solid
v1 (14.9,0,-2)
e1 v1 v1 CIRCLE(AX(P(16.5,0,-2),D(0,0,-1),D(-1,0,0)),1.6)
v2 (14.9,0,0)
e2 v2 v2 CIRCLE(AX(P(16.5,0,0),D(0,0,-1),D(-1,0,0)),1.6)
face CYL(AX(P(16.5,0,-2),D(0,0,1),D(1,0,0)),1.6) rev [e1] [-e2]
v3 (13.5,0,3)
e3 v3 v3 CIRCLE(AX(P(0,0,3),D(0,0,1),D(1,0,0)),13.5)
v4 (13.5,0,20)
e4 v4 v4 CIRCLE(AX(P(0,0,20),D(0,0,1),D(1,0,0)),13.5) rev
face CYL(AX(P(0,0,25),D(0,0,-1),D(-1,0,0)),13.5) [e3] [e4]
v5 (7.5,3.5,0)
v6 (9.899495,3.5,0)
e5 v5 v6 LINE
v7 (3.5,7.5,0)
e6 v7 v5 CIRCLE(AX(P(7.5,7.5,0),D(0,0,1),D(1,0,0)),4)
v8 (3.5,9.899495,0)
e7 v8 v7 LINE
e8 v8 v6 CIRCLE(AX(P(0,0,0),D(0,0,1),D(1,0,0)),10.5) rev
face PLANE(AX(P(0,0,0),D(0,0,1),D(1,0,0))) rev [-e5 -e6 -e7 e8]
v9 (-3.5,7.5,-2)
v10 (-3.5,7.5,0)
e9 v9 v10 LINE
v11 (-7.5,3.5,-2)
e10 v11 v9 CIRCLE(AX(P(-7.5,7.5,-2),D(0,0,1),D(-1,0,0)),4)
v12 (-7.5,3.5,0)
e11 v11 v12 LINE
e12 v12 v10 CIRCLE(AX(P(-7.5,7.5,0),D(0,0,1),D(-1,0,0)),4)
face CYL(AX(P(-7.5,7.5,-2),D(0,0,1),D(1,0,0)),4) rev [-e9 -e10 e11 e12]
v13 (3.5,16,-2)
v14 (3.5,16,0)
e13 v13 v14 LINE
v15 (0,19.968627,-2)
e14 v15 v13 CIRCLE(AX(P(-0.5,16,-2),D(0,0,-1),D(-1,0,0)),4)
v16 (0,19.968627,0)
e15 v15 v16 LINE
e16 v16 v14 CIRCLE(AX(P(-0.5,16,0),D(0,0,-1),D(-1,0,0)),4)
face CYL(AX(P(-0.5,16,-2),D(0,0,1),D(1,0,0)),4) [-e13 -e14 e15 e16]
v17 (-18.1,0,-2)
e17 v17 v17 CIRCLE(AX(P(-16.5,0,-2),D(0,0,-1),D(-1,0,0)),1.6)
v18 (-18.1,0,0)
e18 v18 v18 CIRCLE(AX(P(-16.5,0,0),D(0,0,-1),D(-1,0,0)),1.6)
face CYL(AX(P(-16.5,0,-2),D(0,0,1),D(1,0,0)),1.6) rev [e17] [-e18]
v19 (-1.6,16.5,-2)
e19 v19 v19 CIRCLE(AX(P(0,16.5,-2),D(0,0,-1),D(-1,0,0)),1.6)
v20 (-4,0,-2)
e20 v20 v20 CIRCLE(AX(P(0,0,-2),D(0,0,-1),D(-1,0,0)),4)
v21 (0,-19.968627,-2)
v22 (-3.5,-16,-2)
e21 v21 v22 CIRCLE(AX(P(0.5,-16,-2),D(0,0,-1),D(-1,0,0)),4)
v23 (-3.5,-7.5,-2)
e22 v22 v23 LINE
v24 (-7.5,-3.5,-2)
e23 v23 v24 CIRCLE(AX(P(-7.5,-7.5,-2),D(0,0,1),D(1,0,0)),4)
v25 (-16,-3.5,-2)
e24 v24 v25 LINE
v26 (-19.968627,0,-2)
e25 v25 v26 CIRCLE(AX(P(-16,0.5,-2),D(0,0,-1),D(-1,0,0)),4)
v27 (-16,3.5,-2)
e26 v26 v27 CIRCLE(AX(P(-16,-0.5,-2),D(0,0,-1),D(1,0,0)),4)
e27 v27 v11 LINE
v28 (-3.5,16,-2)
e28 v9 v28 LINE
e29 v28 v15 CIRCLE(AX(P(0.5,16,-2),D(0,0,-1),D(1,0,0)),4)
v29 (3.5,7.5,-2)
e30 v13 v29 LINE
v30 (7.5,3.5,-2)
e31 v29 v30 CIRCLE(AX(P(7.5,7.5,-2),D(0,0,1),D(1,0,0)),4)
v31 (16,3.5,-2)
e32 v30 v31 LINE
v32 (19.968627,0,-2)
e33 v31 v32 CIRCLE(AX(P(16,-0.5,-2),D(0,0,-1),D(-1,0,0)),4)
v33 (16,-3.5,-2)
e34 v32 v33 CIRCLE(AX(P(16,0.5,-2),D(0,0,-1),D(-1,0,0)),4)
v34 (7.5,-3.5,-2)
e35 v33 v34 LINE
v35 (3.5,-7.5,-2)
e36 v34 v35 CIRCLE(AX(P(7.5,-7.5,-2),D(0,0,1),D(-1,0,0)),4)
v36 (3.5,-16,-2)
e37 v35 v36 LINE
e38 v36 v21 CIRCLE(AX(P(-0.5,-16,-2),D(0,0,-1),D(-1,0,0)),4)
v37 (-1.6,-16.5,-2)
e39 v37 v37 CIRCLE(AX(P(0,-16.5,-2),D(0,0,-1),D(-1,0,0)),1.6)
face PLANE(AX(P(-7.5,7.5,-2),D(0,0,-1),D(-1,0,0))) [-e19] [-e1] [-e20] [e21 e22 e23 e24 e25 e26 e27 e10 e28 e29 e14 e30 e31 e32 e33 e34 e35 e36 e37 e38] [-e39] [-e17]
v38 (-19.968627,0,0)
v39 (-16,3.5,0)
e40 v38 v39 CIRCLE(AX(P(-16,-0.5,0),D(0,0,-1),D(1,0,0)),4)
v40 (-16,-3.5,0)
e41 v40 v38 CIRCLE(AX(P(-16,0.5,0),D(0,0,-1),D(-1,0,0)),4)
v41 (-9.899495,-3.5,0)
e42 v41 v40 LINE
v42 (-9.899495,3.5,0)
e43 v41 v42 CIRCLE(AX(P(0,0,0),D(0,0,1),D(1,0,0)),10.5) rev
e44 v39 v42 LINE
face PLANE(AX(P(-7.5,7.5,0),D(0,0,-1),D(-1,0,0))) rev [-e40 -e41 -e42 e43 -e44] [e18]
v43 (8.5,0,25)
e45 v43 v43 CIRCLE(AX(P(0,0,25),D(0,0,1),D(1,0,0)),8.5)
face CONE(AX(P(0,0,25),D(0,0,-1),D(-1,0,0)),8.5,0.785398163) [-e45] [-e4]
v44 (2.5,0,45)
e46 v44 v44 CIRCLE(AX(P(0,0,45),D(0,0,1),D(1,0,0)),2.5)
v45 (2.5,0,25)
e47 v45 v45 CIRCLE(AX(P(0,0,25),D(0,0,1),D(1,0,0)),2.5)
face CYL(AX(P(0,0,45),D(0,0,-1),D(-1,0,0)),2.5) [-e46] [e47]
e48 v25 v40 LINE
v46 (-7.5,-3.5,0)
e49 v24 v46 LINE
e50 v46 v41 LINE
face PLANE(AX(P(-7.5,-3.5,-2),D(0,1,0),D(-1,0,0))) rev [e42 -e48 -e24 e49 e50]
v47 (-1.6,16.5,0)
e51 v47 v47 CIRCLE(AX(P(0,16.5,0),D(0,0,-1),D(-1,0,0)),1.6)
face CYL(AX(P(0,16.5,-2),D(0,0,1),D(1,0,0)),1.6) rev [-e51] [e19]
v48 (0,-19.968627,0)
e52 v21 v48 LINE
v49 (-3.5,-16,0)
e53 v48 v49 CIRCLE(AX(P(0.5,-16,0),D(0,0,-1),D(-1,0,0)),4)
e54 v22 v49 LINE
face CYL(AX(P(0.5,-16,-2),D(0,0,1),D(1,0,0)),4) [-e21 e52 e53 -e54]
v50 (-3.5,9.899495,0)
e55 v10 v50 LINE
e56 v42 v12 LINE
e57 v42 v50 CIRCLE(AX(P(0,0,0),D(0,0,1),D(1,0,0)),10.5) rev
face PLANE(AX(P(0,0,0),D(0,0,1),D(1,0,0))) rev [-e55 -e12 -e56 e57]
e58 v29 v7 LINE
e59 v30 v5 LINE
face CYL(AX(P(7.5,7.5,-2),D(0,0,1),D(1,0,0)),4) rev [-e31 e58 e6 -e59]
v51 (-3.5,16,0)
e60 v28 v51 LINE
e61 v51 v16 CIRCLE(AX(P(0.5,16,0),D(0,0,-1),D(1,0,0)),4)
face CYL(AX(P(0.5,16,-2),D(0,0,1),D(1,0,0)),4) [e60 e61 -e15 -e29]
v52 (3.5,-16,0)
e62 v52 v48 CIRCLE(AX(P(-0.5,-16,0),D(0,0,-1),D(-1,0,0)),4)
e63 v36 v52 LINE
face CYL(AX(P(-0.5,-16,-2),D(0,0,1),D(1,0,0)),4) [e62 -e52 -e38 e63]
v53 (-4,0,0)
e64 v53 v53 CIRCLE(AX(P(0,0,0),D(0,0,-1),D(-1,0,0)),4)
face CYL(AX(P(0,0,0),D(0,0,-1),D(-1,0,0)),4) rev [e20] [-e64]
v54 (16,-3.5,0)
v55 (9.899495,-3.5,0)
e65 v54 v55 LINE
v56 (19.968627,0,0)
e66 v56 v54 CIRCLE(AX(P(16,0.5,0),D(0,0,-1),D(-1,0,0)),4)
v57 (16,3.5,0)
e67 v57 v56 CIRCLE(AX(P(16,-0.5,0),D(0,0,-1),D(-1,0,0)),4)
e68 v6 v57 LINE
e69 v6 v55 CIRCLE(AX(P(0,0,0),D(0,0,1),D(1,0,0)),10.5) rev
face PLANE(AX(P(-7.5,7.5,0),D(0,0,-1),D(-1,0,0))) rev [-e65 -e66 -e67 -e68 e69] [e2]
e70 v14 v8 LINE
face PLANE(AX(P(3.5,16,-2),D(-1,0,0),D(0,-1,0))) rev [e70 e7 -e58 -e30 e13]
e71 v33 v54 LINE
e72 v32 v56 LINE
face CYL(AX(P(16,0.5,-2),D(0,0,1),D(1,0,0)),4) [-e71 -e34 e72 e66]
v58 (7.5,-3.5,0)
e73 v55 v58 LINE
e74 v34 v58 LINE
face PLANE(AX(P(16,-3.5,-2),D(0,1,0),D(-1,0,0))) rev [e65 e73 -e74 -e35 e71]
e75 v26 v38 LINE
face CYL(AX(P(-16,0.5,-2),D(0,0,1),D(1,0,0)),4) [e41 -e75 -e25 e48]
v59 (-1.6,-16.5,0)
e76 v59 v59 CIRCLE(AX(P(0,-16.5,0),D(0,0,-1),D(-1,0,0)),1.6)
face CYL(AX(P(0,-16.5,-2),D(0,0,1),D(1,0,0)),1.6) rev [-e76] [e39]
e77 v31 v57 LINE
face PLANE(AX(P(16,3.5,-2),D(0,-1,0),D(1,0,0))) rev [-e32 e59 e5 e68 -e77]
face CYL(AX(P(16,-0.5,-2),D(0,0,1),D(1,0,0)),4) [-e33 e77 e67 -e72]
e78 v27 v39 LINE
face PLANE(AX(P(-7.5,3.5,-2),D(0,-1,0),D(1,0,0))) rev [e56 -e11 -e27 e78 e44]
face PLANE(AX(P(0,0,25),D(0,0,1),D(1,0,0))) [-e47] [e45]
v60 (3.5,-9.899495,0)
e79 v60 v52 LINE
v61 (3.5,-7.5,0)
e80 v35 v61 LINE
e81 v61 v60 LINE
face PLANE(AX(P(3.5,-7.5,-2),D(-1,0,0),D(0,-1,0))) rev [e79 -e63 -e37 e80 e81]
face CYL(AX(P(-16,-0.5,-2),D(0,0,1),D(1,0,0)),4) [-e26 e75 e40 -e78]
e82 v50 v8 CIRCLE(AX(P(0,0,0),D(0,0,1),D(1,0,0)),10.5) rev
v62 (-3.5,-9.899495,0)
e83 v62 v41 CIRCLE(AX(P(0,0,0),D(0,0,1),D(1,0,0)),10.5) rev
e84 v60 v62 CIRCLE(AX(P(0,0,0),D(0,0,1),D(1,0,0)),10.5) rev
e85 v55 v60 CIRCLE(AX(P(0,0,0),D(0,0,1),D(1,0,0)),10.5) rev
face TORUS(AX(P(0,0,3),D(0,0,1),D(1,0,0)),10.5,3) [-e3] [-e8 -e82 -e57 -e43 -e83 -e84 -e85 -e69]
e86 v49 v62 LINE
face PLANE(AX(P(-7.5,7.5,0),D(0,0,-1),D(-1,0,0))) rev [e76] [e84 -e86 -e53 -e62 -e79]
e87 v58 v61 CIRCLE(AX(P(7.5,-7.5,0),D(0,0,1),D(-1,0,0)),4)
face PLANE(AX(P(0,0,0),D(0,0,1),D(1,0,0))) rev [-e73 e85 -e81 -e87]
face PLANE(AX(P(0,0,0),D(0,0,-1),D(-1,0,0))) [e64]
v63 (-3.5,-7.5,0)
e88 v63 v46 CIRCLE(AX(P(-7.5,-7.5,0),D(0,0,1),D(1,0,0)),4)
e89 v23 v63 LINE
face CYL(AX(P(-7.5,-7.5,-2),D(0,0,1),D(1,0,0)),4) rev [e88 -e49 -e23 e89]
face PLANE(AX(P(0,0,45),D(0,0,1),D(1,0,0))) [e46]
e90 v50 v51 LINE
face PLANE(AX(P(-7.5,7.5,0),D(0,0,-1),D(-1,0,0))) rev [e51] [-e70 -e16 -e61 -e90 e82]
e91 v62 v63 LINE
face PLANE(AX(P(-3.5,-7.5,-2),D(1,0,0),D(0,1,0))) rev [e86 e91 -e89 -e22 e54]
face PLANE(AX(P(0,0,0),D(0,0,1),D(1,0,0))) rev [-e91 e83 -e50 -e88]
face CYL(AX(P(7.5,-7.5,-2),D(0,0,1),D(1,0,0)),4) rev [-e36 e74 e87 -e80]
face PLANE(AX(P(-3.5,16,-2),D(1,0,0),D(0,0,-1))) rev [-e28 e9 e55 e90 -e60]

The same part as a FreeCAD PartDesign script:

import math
import FreeCAD as App
import Part
import Sketcher


def edges_at(feature, points):
    """Names of the edges that pass closest to the given points."""
    edges = feature.Shape.Edges
    near = lambda p: min(range(len(edges)), key=lambda i: edges[i].distToShape(Part.Vertex(*p))[0])
    return sorted({f"Edge{near(p) + 1}" for p in points})

doc = App.newDocument("Part")
body = doc.addObject("PartDesign::Body", "Body")

# Sketch on XY plane
sketch1 = body.newObject("Sketcher::SketchObject", "Sketch")
sketch1.AttachmentSupport = (doc.getObject("XY_Plane"), [""])
sketch1.MapMode = "FlatFace"
sketch1.addGeometry(Part.Circle(App.Vector(0, 0, 0), App.Vector(0, 0, 1), 13.5), False)
sketch1.addConstraint([
    Sketcher.Constraint("Coincident", 0, 3, -1, 1),
    Sketcher.Constraint("Diameter", 0, 27.0),
])
pad1 = body.newObject("PartDesign::Pad", "Pad")
pad1.Profile = sketch1
pad1.Length = 25

# Sketch on XY plane
sketch2 = body.newObject("Sketcher::SketchObject", "Sketch001")
sketch2.AttachmentSupport = (doc.getObject("XY_Plane"), [""])
sketch2.MapMode = "FlatFace"
sketch2.AttachmentOffset = App.Placement(App.Vector(0, 0, 25), App.Rotation())
sketch2.addGeometry(Part.Circle(App.Vector(0, 0, 0), App.Vector(0, 0, 1), 2.5), False)
sketch2.addConstraint([
    Sketcher.Constraint("Coincident", 0, 3, -1, 1),
    Sketcher.Constraint("Diameter", 0, 5.0),
])
pad2 = body.newObject("PartDesign::Pad", "Pad001")
pad2.Profile = sketch2
pad2.Length = 20
doc.recompute()

fillet = body.newObject("PartDesign::Fillet", "Fillet")
fillet.Base = (pad2, edges_at(pad2, [(-13.5, 0, 0)]))
fillet.Radius = 3
doc.recompute()

chamfer = body.newObject("PartDesign::Chamfer", "Chamfer")
chamfer.Base = (fillet, edges_at(fillet, [(-13.5, 0, 25)]))
chamfer.Size = 5

# Sketch on XY plane
sketch3 = body.newObject("Sketcher::SketchObject", "Sketch002")
sketch3.AttachmentSupport = (doc.getObject("XY_Plane"), [""])
sketch3.MapMode = "FlatFace"
sketch3.addGeometry([
    Part.LineSegment(App.Vector(3.5, -7.5, 0), App.Vector(3.5, -16, 0)),  # 0
    Part.ArcOfCircle(Part.Circle(App.Vector(-0.5, -16, 0), App.Vector(0, 0, 1), 4), math.radians(-82.819244), math.radians(0)),  # 1
    Part.ArcOfCircle(Part.Circle(App.Vector(0.5, -16, 0), App.Vector(0, 0, 1), 4), math.radians(180), math.radians(262.819244)),  # 2
    Part.LineSegment(App.Vector(-3.5, -16, 0), App.Vector(-3.5, -7.5, 0)),  # 3
    Part.ArcOfCircle(Part.Circle(App.Vector(-7.5, -7.5, 0), App.Vector(0, 0, 1), 4), math.radians(0), math.radians(90)),  # 4
    Part.LineSegment(App.Vector(-7.5, -3.5, 0), App.Vector(-16, -3.5, 0)),  # 5
    Part.ArcOfCircle(Part.Circle(App.Vector(-16, 0.5, 0), App.Vector(0, 0, 1), 4), math.radians(-172.819244), math.radians(-90)),  # 6
    Part.ArcOfCircle(Part.Circle(App.Vector(-16, -0.5, 0), App.Vector(0, 0, 1), 4), math.radians(90), math.radians(172.819244)),  # 7
    Part.LineSegment(App.Vector(-16, 3.5, 0), App.Vector(-7.5, 3.5, 0)),  # 8
    Part.ArcOfCircle(Part.Circle(App.Vector(-7.5, 7.5, 0), App.Vector(0, 0, 1), 4), math.radians(-90), math.radians(0)),  # 9
    Part.LineSegment(App.Vector(-3.5, 7.5, 0), App.Vector(-3.5, 16, 0)),  # 10
    Part.ArcOfCircle(Part.Circle(App.Vector(0.5, 16, 0), App.Vector(0, 0, 1), 4), math.radians(97.180756), math.radians(180)),  # 11
    Part.ArcOfCircle(Part.Circle(App.Vector(-0.5, 16, 0), App.Vector(0, 0, 1), 4), math.radians(0), math.radians(82.819244)),  # 12
    Part.LineSegment(App.Vector(3.5, 16, 0), App.Vector(3.5, 7.5, 0)),  # 13
    Part.ArcOfCircle(Part.Circle(App.Vector(7.5, 7.5, 0), App.Vector(0, 0, 1), 4), math.radians(180), math.radians(270)),  # 14
    Part.LineSegment(App.Vector(7.5, 3.5, 0), App.Vector(16, 3.5, 0)),  # 15
    Part.ArcOfCircle(Part.Circle(App.Vector(16, -0.5, 0), App.Vector(0, 0, 1), 4), math.radians(7.180756), math.radians(90)),  # 16
    Part.ArcOfCircle(Part.Circle(App.Vector(16, 0.5, 0), App.Vector(0, 0, 1), 4), math.radians(-90), math.radians(-7.180756)),  # 17
    Part.LineSegment(App.Vector(16, -3.5, 0), App.Vector(7.5, -3.5, 0)),  # 18
    Part.ArcOfCircle(Part.Circle(App.Vector(7.5, -7.5, 0), App.Vector(0, 0, 1), 4), math.radians(90), math.radians(180)),  # 19
    Part.Circle(App.Vector(0, -16.5, 0), App.Vector(0, 0, 1), 1.6),  # 20
    Part.Circle(App.Vector(16.5, 0, 0), App.Vector(0, 0, 1), 1.6),  # 21
    Part.Circle(App.Vector(-16.5, 0, 0), App.Vector(0, 0, 1), 1.6),  # 22
    Part.Circle(App.Vector(0, 16.5, 0), App.Vector(0, 0, 1), 1.6),  # 23
], False)
sketch3.addConstraint([
    Sketcher.Constraint("Tangent", 0, 2, 1, 2),
    Sketcher.Constraint("Coincident", 1, 1, 2, 2),
    Sketcher.Constraint("Tangent", 2, 1, 3, 1),
    Sketcher.Constraint("Tangent", 3, 2, 4, 1),
    Sketcher.Constraint("Tangent", 4, 2, 5, 1),
    Sketcher.Constraint("Tangent", 5, 2, 6, 2),
    Sketcher.Constraint("Coincident", 6, 1, 7, 2),
    Sketcher.Constraint("Tangent", 7, 1, 8, 1),
    Sketcher.Constraint("Tangent", 8, 2, 9, 1),
    Sketcher.Constraint("Tangent", 9, 2, 10, 1),
    Sketcher.Constraint("Tangent", 10, 2, 11, 2),
    Sketcher.Constraint("Coincident", 11, 1, 12, 2),
    Sketcher.Constraint("Tangent", 12, 1, 13, 1),
    Sketcher.Constraint("Tangent", 13, 2, 14, 1),
    Sketcher.Constraint("Tangent", 14, 2, 15, 1),
    Sketcher.Constraint("Tangent", 15, 2, 16, 2),
    Sketcher.Constraint("Coincident", 16, 1, 17, 2),
    Sketcher.Constraint("Tangent", 17, 1, 18, 1),
    Sketcher.Constraint("Tangent", 18, 2, 19, 1),
    Sketcher.Constraint("Tangent", 19, 2, 0, 1),
    Sketcher.Constraint("Vertical", 0),
    Sketcher.Constraint("Vertical", 3),
    Sketcher.Constraint("Horizontal", 5),
    Sketcher.Constraint("Horizontal", 8),
    Sketcher.Constraint("Vertical", 10),
    Sketcher.Constraint("Vertical", 13),
    Sketcher.Constraint("Horizontal", 15),
    Sketcher.Constraint("Horizontal", 18),
    Sketcher.Constraint("Equal", 1, 2),
    Sketcher.Constraint("Equal", 2, 4),
    Sketcher.Constraint("Equal", 4, 6),
    Sketcher.Constraint("Equal", 6, 7),
    Sketcher.Constraint("Equal", 7, 9),
    Sketcher.Constraint("Equal", 9, 11),
    Sketcher.Constraint("Equal", 11, 12),
    Sketcher.Constraint("Equal", 12, 14),
    Sketcher.Constraint("Equal", 14, 16),
    Sketcher.Constraint("Equal", 16, 17),
    Sketcher.Constraint("Equal", 17, 19),
    Sketcher.Constraint("Equal", 20, 21),
    Sketcher.Constraint("Equal", 21, 22),
    Sketcher.Constraint("Equal", 22, 23),
    Sketcher.Constraint("Symmetric", 1, 3, 11, 3, -1, 1),
    Sketcher.Constraint("Symmetric", 2, 3, 12, 3, -1, 1),
    Sketcher.Constraint("Symmetric", 6, 3, 16, 3, -1, 1),
    Sketcher.Constraint("Symmetric", 7, 3, 17, 3, -1, 1),
    Sketcher.Constraint("Symmetric", 21, 3, 22, 3, -1, 1),
    Sketcher.Constraint("Symmetric", 20, 3, 23, 3, -1, 1),
    Sketcher.Constraint("Symmetric", 1, 3, 2, 3, -2),
    Sketcher.Constraint("Symmetric", 7, 3, 16, 3, -2),
    Sketcher.Constraint("PointOnObject", 20, 3, -2),
    Sketcher.Constraint("PointOnObject", 21, 3, -1),
    Sketcher.Constraint("Equal", 18, 0),
    Sketcher.Constraint("Radius", 1, 4.0),
    Sketcher.Constraint("Diameter", 20, 3.2),
    Sketcher.Constraint("DistanceX", 5, 2, 5, 1, 8.5),
    Sketcher.Constraint("DistanceY", 1, 3, -1, 1, 16.0),
    Sketcher.Constraint("DistanceX", 6, 3, -1, 1, 16.0),
    Sketcher.Constraint("DistanceY", 20, 3, 4, 3, 9.0),
    Sketcher.Constraint("DistanceX", 14, 3, 21, 3, 9.0),
])
pad3 = body.newObject("PartDesign::Pad", "Pad002")
pad3.Profile = sketch3
pad3.Length = 2
pad3.Reversed = True

# Sketch on XY plane
sketch4 = body.newObject("Sketcher::SketchObject", "Sketch003")
sketch4.AttachmentSupport = (doc.getObject("XY_Plane"), [""])
sketch4.MapMode = "FlatFace"
sketch4.AttachmentOffset = App.Placement(App.Vector(0, 0, -2), App.Rotation())
sketch4.addGeometry(Part.Circle(App.Vector(0, 0, 0), App.Vector(0, 0, 1), 4), False)
sketch4.addConstraint([
    Sketcher.Constraint("Coincident", 0, 3, -1, 1),
    Sketcher.Constraint("Diameter", 0, 8.0),
])
pocket1 = body.newObject("PartDesign::Pocket", "Pocket")
pocket1.Profile = sketch4
pocket1.Length = 2
pocket1.Reversed = True

doc.recompute()
